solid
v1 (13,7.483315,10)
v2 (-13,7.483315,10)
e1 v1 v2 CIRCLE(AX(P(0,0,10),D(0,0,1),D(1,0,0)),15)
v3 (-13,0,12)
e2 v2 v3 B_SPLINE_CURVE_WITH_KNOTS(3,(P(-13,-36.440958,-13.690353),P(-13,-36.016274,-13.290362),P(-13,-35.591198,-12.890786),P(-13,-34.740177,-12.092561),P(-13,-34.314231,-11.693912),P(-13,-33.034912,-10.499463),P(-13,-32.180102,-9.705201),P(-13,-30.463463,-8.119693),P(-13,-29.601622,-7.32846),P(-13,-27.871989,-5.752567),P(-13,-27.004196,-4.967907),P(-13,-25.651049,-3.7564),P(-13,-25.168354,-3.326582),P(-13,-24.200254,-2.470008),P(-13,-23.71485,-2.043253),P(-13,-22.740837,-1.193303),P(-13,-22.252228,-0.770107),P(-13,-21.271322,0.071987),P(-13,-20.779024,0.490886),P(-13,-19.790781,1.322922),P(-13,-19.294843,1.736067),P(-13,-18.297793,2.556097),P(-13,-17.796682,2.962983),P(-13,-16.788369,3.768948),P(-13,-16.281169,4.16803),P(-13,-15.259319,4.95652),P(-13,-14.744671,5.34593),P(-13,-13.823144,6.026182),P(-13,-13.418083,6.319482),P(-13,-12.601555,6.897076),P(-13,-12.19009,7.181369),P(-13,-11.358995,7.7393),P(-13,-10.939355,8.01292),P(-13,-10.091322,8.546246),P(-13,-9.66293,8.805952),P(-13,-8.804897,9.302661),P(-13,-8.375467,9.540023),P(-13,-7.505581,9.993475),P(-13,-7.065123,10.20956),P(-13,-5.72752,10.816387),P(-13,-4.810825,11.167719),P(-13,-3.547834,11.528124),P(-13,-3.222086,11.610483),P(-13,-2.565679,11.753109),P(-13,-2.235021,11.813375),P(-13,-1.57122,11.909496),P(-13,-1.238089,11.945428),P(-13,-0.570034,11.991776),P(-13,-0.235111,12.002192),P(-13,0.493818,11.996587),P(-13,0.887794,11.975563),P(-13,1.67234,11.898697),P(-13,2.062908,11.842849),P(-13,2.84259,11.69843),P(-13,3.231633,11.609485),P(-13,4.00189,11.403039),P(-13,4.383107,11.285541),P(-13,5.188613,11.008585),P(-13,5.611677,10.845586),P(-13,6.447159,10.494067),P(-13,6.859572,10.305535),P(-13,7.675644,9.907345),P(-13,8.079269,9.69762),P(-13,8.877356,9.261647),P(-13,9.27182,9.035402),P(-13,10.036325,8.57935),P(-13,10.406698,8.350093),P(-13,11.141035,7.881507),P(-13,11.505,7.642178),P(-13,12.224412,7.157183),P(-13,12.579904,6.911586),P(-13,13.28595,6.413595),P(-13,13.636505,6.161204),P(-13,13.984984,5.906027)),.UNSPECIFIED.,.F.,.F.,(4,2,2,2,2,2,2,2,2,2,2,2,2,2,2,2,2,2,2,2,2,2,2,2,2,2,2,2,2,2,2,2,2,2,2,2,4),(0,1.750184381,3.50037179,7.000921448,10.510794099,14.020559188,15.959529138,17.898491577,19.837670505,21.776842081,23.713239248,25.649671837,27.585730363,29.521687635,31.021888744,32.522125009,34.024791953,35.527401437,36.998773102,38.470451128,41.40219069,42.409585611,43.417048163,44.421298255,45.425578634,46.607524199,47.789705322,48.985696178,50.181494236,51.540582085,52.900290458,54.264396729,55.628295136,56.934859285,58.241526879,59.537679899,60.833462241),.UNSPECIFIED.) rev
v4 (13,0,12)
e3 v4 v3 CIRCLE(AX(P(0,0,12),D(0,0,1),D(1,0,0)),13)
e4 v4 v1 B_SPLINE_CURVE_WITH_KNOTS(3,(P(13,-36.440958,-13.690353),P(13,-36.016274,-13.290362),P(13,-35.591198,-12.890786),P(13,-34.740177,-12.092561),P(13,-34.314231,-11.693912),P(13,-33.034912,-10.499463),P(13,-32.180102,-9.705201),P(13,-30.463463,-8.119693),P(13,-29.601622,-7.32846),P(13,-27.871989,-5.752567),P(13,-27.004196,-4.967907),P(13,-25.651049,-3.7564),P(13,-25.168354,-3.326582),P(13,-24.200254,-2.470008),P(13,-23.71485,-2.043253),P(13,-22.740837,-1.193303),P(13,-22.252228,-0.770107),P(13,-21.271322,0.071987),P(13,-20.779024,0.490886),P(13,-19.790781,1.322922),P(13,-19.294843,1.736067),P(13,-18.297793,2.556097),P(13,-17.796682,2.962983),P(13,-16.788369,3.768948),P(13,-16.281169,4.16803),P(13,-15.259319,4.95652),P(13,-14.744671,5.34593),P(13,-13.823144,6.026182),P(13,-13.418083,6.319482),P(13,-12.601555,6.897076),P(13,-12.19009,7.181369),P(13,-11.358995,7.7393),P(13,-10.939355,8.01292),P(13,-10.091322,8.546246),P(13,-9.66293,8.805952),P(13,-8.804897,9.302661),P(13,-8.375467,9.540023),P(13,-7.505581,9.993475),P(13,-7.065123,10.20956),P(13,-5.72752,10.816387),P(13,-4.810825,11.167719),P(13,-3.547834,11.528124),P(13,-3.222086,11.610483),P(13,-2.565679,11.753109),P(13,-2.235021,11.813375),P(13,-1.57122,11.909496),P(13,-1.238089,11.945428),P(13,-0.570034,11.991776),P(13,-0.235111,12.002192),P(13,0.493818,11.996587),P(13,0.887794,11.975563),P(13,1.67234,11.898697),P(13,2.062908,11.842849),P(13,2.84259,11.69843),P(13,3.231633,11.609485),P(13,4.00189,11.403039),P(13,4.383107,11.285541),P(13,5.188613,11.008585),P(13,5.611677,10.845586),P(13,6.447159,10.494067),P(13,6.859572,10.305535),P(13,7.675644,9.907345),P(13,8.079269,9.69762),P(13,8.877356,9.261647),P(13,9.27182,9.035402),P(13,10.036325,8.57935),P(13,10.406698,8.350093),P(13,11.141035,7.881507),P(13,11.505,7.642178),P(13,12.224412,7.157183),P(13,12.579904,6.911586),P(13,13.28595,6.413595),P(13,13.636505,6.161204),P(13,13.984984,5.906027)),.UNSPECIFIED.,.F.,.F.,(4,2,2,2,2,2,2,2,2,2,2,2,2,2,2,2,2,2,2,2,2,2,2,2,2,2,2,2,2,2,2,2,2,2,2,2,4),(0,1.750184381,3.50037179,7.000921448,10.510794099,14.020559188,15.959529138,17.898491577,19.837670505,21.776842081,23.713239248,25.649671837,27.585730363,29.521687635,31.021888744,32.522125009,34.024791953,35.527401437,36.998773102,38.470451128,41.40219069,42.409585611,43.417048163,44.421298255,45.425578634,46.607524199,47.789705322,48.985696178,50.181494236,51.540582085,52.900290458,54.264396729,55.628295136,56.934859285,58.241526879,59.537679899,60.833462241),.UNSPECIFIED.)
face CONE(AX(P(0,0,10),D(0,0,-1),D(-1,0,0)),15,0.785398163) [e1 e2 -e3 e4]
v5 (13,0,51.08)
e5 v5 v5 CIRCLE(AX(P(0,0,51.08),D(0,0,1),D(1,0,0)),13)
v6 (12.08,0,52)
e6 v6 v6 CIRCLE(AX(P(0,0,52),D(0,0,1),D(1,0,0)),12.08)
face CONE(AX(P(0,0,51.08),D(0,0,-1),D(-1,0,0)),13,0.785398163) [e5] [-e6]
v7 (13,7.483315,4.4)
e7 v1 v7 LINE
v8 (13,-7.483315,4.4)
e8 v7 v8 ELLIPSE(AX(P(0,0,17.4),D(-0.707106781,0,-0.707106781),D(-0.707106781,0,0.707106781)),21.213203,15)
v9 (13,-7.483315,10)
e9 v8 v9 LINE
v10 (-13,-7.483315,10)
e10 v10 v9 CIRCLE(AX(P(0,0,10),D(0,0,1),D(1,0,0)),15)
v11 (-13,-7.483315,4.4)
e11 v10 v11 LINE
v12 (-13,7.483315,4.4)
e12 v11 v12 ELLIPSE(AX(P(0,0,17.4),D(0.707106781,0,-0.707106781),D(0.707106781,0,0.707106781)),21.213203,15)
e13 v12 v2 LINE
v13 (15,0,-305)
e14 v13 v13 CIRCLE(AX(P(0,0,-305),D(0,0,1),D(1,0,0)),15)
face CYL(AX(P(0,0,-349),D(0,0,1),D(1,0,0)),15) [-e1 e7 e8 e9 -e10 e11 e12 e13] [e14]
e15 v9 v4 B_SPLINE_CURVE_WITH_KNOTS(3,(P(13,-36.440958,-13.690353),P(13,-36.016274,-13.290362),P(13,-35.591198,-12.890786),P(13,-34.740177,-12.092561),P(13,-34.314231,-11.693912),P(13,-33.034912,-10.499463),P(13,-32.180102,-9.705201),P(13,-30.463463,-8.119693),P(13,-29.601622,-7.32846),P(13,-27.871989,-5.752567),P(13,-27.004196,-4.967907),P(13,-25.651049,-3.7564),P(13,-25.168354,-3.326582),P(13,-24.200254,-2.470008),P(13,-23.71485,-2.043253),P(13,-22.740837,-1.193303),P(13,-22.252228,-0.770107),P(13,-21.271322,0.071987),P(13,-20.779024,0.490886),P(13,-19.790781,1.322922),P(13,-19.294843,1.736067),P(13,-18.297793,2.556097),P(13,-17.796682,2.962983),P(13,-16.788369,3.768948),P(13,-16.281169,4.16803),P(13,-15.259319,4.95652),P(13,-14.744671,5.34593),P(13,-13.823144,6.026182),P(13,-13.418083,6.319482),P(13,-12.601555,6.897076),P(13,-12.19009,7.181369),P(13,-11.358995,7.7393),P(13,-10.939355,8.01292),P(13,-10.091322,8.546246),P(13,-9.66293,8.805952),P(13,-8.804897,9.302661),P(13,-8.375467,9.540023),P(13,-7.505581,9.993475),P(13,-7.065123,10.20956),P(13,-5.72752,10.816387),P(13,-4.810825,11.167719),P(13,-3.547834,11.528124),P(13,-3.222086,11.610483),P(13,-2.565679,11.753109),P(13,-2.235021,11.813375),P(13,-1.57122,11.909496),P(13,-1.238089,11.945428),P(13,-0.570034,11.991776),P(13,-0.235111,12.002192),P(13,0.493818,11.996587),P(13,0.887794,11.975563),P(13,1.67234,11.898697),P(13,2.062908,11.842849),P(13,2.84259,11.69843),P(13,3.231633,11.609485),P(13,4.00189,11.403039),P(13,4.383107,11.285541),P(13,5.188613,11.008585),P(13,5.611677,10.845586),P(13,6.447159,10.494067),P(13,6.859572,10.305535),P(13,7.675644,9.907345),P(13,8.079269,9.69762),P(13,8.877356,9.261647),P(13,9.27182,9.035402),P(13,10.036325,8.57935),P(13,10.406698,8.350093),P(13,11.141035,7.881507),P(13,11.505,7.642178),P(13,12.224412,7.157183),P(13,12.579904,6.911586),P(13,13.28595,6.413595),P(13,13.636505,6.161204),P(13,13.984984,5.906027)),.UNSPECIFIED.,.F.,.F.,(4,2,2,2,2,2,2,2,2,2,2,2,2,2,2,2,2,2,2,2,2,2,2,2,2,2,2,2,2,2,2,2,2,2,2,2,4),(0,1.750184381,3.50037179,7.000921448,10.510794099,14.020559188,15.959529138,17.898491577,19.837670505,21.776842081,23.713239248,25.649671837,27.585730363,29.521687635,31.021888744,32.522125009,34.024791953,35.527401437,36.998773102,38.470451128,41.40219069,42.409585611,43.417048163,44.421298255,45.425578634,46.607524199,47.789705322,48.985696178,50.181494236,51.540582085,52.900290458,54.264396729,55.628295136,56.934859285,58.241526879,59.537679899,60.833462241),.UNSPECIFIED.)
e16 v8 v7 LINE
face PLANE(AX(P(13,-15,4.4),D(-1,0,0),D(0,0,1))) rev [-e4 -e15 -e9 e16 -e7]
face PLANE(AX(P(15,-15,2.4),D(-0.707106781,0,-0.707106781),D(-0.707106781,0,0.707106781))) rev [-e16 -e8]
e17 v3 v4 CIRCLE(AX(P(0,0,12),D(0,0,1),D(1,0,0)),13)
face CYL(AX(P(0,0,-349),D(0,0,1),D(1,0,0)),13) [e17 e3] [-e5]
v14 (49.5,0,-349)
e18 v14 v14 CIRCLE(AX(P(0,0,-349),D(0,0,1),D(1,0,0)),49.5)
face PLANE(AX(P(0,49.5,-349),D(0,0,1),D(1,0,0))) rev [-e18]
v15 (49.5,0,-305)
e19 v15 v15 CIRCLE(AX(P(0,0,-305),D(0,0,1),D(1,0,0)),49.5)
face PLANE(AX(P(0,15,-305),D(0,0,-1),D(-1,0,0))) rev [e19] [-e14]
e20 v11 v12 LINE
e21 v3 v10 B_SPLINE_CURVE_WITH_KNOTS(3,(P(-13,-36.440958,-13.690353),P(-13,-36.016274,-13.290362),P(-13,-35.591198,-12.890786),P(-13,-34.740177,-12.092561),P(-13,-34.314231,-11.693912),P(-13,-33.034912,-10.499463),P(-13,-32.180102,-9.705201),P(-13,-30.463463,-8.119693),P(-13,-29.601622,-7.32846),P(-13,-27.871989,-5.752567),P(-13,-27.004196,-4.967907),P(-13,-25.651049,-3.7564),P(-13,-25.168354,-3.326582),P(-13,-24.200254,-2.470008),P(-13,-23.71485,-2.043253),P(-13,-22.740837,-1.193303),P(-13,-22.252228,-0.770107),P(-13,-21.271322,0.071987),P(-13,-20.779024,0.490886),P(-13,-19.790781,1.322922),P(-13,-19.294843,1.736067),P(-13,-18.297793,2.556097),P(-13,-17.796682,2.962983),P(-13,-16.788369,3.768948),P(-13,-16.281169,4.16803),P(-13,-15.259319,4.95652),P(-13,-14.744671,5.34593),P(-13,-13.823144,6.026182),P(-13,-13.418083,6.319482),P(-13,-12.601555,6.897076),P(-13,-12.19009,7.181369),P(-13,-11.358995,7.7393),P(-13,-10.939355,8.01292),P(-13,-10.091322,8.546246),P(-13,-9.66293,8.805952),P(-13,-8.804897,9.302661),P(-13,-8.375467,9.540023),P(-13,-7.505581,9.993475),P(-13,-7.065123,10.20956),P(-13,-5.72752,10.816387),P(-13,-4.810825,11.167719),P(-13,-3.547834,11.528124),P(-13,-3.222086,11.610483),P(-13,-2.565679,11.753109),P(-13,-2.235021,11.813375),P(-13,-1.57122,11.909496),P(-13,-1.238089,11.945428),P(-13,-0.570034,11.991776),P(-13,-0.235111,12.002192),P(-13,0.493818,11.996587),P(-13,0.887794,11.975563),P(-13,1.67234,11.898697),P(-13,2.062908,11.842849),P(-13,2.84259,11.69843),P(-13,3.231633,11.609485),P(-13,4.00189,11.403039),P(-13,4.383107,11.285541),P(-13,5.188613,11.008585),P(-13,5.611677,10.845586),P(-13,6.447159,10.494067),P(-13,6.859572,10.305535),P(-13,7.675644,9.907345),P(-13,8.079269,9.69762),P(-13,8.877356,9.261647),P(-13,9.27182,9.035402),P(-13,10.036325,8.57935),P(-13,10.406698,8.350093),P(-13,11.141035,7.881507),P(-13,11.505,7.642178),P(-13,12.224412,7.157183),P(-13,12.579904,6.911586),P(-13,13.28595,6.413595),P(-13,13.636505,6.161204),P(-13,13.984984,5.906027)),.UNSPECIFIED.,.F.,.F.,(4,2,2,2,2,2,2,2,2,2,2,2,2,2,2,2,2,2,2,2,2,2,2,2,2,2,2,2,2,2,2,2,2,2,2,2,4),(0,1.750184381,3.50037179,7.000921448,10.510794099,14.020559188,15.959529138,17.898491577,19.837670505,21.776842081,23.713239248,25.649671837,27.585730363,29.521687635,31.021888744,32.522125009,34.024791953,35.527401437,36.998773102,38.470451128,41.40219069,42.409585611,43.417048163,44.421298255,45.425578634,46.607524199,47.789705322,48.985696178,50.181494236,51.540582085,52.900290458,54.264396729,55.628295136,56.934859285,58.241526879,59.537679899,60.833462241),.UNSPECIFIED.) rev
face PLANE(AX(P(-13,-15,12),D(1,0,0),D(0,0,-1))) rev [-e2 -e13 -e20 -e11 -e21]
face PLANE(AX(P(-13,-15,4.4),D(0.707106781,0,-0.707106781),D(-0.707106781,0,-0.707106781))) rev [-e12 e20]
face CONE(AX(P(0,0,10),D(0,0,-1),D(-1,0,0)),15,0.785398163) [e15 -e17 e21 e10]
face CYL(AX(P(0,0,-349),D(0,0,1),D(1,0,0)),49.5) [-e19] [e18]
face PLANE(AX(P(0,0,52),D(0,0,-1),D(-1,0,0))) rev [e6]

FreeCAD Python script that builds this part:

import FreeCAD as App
import Part
import Sketcher

V = App.Vector
Q = App.Units.Quantity

doc = App.newDocument("Part")
body = doc.addObject("PartDesign::Body", "Body")

sketch1 = body.newObject("Sketcher::SketchObject", "Sketch")
sketch1.AttachmentSupport = (doc.getObject("YZ_Plane"), [""])
sketch1.MapMode = "FlatFace"
sketch1.addGeometry(Part.LineSegment(V(12.1, 52, 0), V(0, 52, 0)), False)
sketch1.addGeometry(Part.LineSegment(V(0, 52, 0), V(0, -349, 0)), False)
sketch1.addGeometry(Part.LineSegment(V(0, -349, 0), V(49.5, -349, 0)), False)
sketch1.addGeometry(Part.LineSegment(V(49.5, -349, 0), V(49.5, -305, 0)), False)
sketch1.addGeometry(Part.LineSegment(V(49.5, -305, 0), V(15, -305, 0)), False)
sketch1.addGeometry(Part.LineSegment(V(15, -305, 0), V(15, 10, 0)), False)
sketch1.addGeometry(Part.LineSegment(V(15, 10, 0), V(13, 12, 0)), False)
sketch1.addGeometry(Part.LineSegment(V(13, 12, 0), V(13, 51.1, 0)), False)
sketch1.addGeometry(Part.LineSegment(V(13, 51.1, 0), V(12.1, 52, 0)), False)
sketch1.addConstraint(Sketcher.Constraint("Coincident", 0, 2, 1, 1))
sketch1.addConstraint(Sketcher.Constraint("Coincident", 1, 2, 2, 1))
sketch1.addConstraint(Sketcher.Constraint("Coincident", 2, 2, 3, 1))
sketch1.addConstraint(Sketcher.Constraint("Coincident", 3, 2, 4, 1))
sketch1.addConstraint(Sketcher.Constraint("Coincident", 4, 2, 5, 1))
sketch1.addConstraint(Sketcher.Constraint("Coincident", 5, 2, 6, 1))
sketch1.addConstraint(Sketcher.Constraint("Coincident", 6, 2, 7, 1))
sketch1.addConstraint(Sketcher.Constraint("Coincident", 7, 2, 8, 1))
sketch1.addConstraint(Sketcher.Constraint("Coincident", 8, 2, 0, 1))
sketch1.addConstraint(Sketcher.Constraint("Horizontal", 0))
sketch1.addConstraint(Sketcher.Constraint("Vertical", 1))
sketch1.addConstraint(Sketcher.Constraint("Horizontal", 2))
sketch1.addConstraint(Sketcher.Constraint("Vertical", 3))
sketch1.addConstraint(Sketcher.Constraint("Horizontal", 4))
sketch1.addConstraint(Sketcher.Constraint("Vertical", 5))
sketch1.addConstraint(Sketcher.Constraint("Vertical", 7))
sketch1.addConstraint(Sketcher.Constraint("PointOnObject", 0, 2, -2))
sketch1.addConstraint(Sketcher.Constraint("Parallel", 6, 8))
sketch1.addConstraint(Sketcher.Constraint("DistanceY", 1, 2, 1, 1, Q("401 mm")))
sketch1.addConstraint(Sketcher.Constraint("DistanceY", 3, 1, 3, 2, Q("44 mm")))
sketch1.addConstraint(Sketcher.Constraint("DistanceY", 5, 1, 5, 2, Q("315 mm")))
sketch1.addConstraint(Sketcher.Constraint("Angle", 6, Q("135 deg")))
sketch1.addConstraint(Sketcher.Constraint("DistanceX", 2, 1, 2, 2, Q("49.5 mm")))
sketch1.addConstraint(Sketcher.Constraint("DistanceX", 4, 2, 4, 1, Q("34.5 mm")))
sketch1.addConstraint(Sketcher.Constraint("DistanceY", -1, 1, 0, 2, Q("52 mm")))
sketch1.addConstraint(Sketcher.Constraint("DistanceX", -1, 1, 6, 2, Q("13 mm")))
sketch1.addConstraint(Sketcher.Constraint("DistanceX", 0, 2, 0, 1, Q("12.08 mm")))
revolution = body.newObject("PartDesign::Revolution", "Revolution")
revolution.Profile = sketch1
revolution.ReferenceAxis = (sketch1, ["V_Axis"])
revolution.Angle = 360

sketch2 = body.newObject("Sketcher::SketchObject", "Sketch001")
sketch2.AttachmentSupport = (doc.getObject("XZ_Plane"), [""])
sketch2.MapMode = "FlatFace"
sketch2.addGeometry(Part.LineSegment(V(13, 4.4, 0), V(13, 12, 0)), False)
sketch2.addGeometry(Part.LineSegment(V(13, 12, 0), V(15, 12, 0)), False)
sketch2.addGeometry(Part.LineSegment(V(15, 12, 0), V(15, 2.4, 0)), False)
sketch2.addGeometry(Part.LineSegment(V(15, 2.4, 0), V(13, 4.4, 0)), False)
sketch2.addConstraint(Sketcher.Constraint("Coincident", 0, 2, 1, 1))
sketch2.addConstraint(Sketcher.Constraint("Coincident", 1, 2, 2, 1))
sketch2.addConstraint(Sketcher.Constraint("Coincident", 2, 2, 3, 1))
sketch2.addConstraint(Sketcher.Constraint("Coincident", 3, 2, 0, 1))
sketch2.addConstraint(Sketcher.Constraint("Vertical", 0))
sketch2.addConstraint(Sketcher.Constraint("Horizontal", 1))
sketch2.addConstraint(Sketcher.Constraint("Vertical", 2))
sketch2.addConstraint(Sketcher.Constraint("DistanceX", 1, 1, 1, 2, Q("2 mm")))
sketch2.addConstraint(Sketcher.Constraint("Angle", 3, Q("135 deg")))
sketch2.addConstraint(Sketcher.Constraint("DistanceY", 0, 1, 0, 2, Q("7.6 mm")))
sketch2.addConstraint(Sketcher.Constraint("DistanceX", -1, 1, 0, 2, Q("13 mm")))
sketch2.addConstraint(Sketcher.Constraint("DistanceY", -1, 1, 0, 2, Q("12 mm")))
pocket1 = body.newObject("PartDesign::Pocket", "Pocket")
pocket1.Profile = sketch2
pocket1.Type = "ThroughAll"
pocket1.Midplane = True

sketch3 = body.newObject("Sketcher::SketchObject", "Sketch002")
sketch3.AttachmentSupport = (doc.getObject("XZ_Plane"), [""])
sketch3.MapMode = "FlatFace"
sketch3.addGeometry(Part.LineSegment(V(-15, 2.4, 0), V(-15, 12, 0)), False)
sketch3.addGeometry(Part.LineSegment(V(-15, 12, 0), V(-13, 12, 0)), False)
sketch3.addGeometry(Part.LineSegment(V(-13, 12, 0), V(-13, 4.4, 0)), False)
sketch3.addGeometry(Part.LineSegment(V(-13, 4.4, 0), V(-15, 2.4, 0)), False)
sketch3.addConstraint(Sketcher.Constraint("Coincident", 0, 2, 1, 1))
sketch3.addConstraint(Sketcher.Constraint("Coincident", 1, 2, 2, 1))
sketch3.addConstraint(Sketcher.Constraint("Coincident", 2, 2, 3, 1))
sketch3.addConstraint(Sketcher.Constraint("Coincident", 3, 2, 0, 1))
sketch3.addConstraint(Sketcher.Constraint("Vertical", 0))
sketch3.addConstraint(Sketcher.Constraint("Horizontal", 1))
sketch3.addConstraint(Sketcher.Constraint("Vertical", 2))
sketch3.addConstraint(Sketcher.Constraint("DistanceX", 1, 1, 1, 2, Q("2 mm")))
sketch3.addConstraint(Sketcher.Constraint("Angle", 3, Q("-135 deg")))
sketch3.addConstraint(Sketcher.Constraint("DistanceY", 0, 1, 0, 2, Q("9.6 mm")))
sketch3.addConstraint(Sketcher.Constraint("DistanceX", 0, 2, -1, 1, Q("15 mm")))
sketch3.addConstraint(Sketcher.Constraint("DistanceY", -1, 1, 0, 2, Q("12 mm")))
pocket2 = body.newObject("PartDesign::Pocket", "Pocket001")
pocket2.Profile = sketch3
pocket2.Type = "ThroughAll"
pocket2.Midplane = True

doc.recompute()
